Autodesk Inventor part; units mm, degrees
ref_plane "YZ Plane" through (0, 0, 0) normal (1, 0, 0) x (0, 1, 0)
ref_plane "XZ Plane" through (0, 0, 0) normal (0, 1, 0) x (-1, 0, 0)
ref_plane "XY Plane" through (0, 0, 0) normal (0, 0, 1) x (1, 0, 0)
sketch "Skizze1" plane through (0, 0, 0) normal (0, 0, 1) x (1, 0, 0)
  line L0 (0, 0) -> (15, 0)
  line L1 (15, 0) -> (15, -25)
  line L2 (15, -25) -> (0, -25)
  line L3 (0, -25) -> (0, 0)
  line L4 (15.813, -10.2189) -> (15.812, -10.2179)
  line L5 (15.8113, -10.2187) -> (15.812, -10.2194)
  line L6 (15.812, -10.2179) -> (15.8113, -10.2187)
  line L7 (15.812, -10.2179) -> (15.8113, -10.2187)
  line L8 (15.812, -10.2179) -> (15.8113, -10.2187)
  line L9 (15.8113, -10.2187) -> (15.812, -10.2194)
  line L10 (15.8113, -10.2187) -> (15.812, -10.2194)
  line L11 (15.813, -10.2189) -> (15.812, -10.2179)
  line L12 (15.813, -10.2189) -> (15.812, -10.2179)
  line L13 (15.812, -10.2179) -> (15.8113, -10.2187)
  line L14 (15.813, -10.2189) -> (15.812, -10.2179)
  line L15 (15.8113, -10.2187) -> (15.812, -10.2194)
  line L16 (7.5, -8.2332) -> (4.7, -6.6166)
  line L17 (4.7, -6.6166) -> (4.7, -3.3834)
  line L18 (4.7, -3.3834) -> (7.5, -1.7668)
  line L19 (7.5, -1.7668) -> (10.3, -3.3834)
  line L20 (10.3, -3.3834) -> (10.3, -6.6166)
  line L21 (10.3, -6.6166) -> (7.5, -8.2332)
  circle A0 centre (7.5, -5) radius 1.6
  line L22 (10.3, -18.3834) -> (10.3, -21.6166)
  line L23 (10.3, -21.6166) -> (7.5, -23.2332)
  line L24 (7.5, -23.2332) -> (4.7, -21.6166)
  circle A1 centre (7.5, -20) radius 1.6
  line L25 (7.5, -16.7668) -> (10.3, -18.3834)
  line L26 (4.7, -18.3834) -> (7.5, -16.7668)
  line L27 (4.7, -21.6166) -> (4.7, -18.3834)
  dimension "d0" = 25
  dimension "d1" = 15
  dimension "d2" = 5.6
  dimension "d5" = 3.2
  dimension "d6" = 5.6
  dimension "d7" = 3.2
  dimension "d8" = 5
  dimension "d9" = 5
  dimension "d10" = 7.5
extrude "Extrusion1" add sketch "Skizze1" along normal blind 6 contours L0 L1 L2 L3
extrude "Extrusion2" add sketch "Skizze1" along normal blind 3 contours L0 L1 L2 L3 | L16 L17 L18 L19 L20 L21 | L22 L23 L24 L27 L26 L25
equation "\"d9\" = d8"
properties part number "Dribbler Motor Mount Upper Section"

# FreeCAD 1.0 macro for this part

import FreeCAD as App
import Part
import Sketcher

V = App.Vector
Q = App.Units.Quantity

doc = App.newDocument("Part")
body = doc.addObject("PartDesign::Body", "Body")

# Sketch on XY plane
sketch1 = doc.addObject("Sketcher::SketchObject", "Sketch")
body.addObject(sketch1)
sketch1.AttachmentSupport = (doc.XY_Plane, [""])
sketch1.MapMode = "FlatFace"
sketch1.addGeometry([
    Part.LineSegment(V(15, 0, 0), V(0, 0, 0)),  # 0
    Part.LineSegment(V(0, 0, 0), V(0, -25, 0)),  # 1
    Part.LineSegment(V(0, -25, 0), V(15, -25, 0)),  # 2
    Part.LineSegment(V(15, -25, 0), V(15, 0, 0)),  # 3
    Part.LineSegment(V(7.5, -16.8, 0), V(10.3, -18.4, 0)),  # 4
    Part.LineSegment(V(10.3, -18.4, 0), V(10.3, -21.6, 0)),  # 5
    Part.LineSegment(V(10.3, -21.6, 0), V(7.5, -23.2, 0)),  # 6
    Part.LineSegment(V(7.5, -23.2, 0), V(4.7, -21.6, 0)),  # 7
    Part.LineSegment(V(4.7, -21.6, 0), V(4.7, -18.4, 0)),  # 8
    Part.LineSegment(V(4.7, -18.4, 0), V(7.5, -16.8, 0)),  # 9
    Part.LineSegment(V(10.3, -6.6, 0), V(7.5, -8.2, 0)),  # 10
    Part.LineSegment(V(7.5, -8.2, 0), V(4.7, -6.6, 0)),  # 11
    Part.LineSegment(V(4.7, -6.6, 0), V(4.7, -3.4, 0)),  # 12
    Part.LineSegment(V(4.7, -3.4, 0), V(7.5, -1.8, 0)),  # 13
    Part.LineSegment(V(7.5, -1.8, 0), V(10.3, -3.4, 0)),  # 14
    Part.LineSegment(V(10.3, -3.4, 0), V(10.3, -6.6, 0)),  # 15
], False)
sketch1.addConstraint([
    Sketcher.Constraint("Coincident", 0, 2, 1, 1),
    Sketcher.Constraint("Coincident", 1, 2, 2, 1),
    Sketcher.Constraint("Coincident", 2, 2, 3, 1),
    Sketcher.Constraint("Coincident", 3, 2, 0, 1),
    Sketcher.Constraint("Coincident", 4, 2, 5, 1),
    Sketcher.Constraint("Coincident", 5, 2, 6, 1),
    Sketcher.Constraint("Coincident", 6, 2, 7, 1),
    Sketcher.Constraint("Coincident", 7, 2, 8, 1),
    Sketcher.Constraint("Coincident", 8, 2, 9, 1),
    Sketcher.Constraint("Coincident", 9, 2, 4, 1),
    Sketcher.Constraint("Coincident", 10, 2, 11, 1),
    Sketcher.Constraint("Coincident", 11, 2, 12, 1),
    Sketcher.Constraint("Coincident", 12, 2, 13, 1),
    Sketcher.Constraint("Coincident", 13, 2, 14, 1),
    Sketcher.Constraint("Coincident", 14, 2, 15, 1),
    Sketcher.Constraint("Coincident", 15, 2, 10, 1),
    Sketcher.Constraint("Horizontal", 0),
    Sketcher.Constraint("Vertical", 1),
    Sketcher.Constraint("Horizontal", 2),
    Sketcher.Constraint("Vertical", 3),
    Sketcher.Constraint("Vertical", 5),
    Sketcher.Constraint("Vertical", 8),
    Sketcher.Constraint("Vertical", 12),
    Sketcher.Constraint("Vertical", 15),
    Sketcher.Constraint("Coincident", 0, 2, -1, 1),
    Sketcher.Constraint("Parallel", 4, 7),
    Sketcher.Constraint("Parallel", 6, 9),
    Sketcher.Constraint("Parallel", 9, 10),
    Sketcher.Constraint("Parallel", 7, 11),
    Sketcher.Constraint("Parallel", 10, 13),
    Sketcher.Constraint("Parallel", 11, 14),
    Sketcher.Constraint("Horizontal", 5, 2, 7, 2),
    Sketcher.Constraint("Horizontal", 4, 2, 8, 2),
    Sketcher.Constraint("Horizontal", 12, 2, 14, 2),
    Sketcher.Constraint("Horizontal", 11, 2, 15, 2),
    Sketcher.Constraint("Vertical", 6, 2, 9, 2),
    Sketcher.Constraint("Vertical", 9, 2, 10, 2),
    Sketcher.Constraint("Vertical", 8, 2, 11, 2),
    Sketcher.Constraint("Equal", 8, 12),
    Sketcher.Constraint("DistanceX", 0, 2, 0, 1, 15.0),
    Sketcher.Constraint("DistanceY", 1, 2, 1, 1, 25.0),
    Sketcher.Constraint("DistanceX", -1, 1, 6, 2, 7.5),
    Sketcher.Constraint("DistanceX", 7, 2, 5, 2, 5.6),
    Sketcher.Constraint("Angle", 4, Q("-30.0003 deg")),
    Sketcher.Constraint("DistanceY", 5, 2, 5, 1, 3.2332),
    Sketcher.Constraint("DistanceY", 4, 2, -1, 1, 18.3834),
    Sketcher.Constraint("DistanceY", 10, 2, -1, 1, 8.2332),
])
pad1 = doc.addObject("PartDesign::Pad", "Pad")
body.addObject(pad1)
pad1.Profile = sketch1
pad1.Length = 6

# Sketch on XY plane
sketch2 = doc.addObject("Sketcher::SketchObject", "Sketch001")
body.addObject(sketch2)
sketch2.AttachmentSupport = (doc.XY_Plane, [""])
sketch2.MapMode = "FlatFace"
sketch2.addGeometry([
    Part.LineSegment(V(15, 0, 0), V(0, 0, 0)),  # 0
    Part.LineSegment(V(0, 0, 0), V(0, -25, 0)),  # 1
    Part.LineSegment(V(0, -25, 0), V(15, -25, 0)),  # 2
    Part.LineSegment(V(15, -25, 0), V(15, 0, 0)),  # 3
    Part.Circle(V(7.5, -20, 0), V(0, 0, 1), 1.6),  # 4
    Part.Circle(V(7.5, -5, 0), V(0, 0, 1), 1.6),  # 5
], False)
sketch2.addConstraint([
    Sketcher.Constraint("Coincident", 0, 2, 1, 1),
    Sketcher.Constraint("Coincident", 1, 2, 2, 1),
    Sketcher.Constraint("Coincident", 2, 2, 3, 1),
    Sketcher.Constraint("Coincident", 3, 2, 0, 1),
    Sketcher.Constraint("Horizontal", 0),
    Sketcher.Constraint("Vertical", 1),
    Sketcher.Constraint("Horizontal", 2),
    Sketcher.Constraint("Vertical", 3),
    Sketcher.Constraint("Coincident", 0, 2, -1, 1),
    Sketcher.Constraint("Equal", 4, 5),
    Sketcher.Constraint("Vertical", 4, 3, 5, 3),
    Sketcher.Constraint("Diameter", 4, 3.2),
    Sketcher.Constraint("DistanceX", 0, 2, 0, 1, 15.0),
    Sketcher.Constraint("DistanceY", 1, 2, 1, 1, 25.0),
    Sketcher.Constraint("DistanceY", 5, 3, -1, 1, 5.0),
    Sketcher.Constraint("DistanceY", 4, 3, 5, 3, 15.0),
    Sketcher.Constraint("DistanceX", -1, 1, 4, 3, 7.5),
])
pad2 = doc.addObject("PartDesign::Pad", "Pad001")
body.addObject(pad2)
pad2.Profile = sketch2
pad2.Length = 3

doc.recompute()
